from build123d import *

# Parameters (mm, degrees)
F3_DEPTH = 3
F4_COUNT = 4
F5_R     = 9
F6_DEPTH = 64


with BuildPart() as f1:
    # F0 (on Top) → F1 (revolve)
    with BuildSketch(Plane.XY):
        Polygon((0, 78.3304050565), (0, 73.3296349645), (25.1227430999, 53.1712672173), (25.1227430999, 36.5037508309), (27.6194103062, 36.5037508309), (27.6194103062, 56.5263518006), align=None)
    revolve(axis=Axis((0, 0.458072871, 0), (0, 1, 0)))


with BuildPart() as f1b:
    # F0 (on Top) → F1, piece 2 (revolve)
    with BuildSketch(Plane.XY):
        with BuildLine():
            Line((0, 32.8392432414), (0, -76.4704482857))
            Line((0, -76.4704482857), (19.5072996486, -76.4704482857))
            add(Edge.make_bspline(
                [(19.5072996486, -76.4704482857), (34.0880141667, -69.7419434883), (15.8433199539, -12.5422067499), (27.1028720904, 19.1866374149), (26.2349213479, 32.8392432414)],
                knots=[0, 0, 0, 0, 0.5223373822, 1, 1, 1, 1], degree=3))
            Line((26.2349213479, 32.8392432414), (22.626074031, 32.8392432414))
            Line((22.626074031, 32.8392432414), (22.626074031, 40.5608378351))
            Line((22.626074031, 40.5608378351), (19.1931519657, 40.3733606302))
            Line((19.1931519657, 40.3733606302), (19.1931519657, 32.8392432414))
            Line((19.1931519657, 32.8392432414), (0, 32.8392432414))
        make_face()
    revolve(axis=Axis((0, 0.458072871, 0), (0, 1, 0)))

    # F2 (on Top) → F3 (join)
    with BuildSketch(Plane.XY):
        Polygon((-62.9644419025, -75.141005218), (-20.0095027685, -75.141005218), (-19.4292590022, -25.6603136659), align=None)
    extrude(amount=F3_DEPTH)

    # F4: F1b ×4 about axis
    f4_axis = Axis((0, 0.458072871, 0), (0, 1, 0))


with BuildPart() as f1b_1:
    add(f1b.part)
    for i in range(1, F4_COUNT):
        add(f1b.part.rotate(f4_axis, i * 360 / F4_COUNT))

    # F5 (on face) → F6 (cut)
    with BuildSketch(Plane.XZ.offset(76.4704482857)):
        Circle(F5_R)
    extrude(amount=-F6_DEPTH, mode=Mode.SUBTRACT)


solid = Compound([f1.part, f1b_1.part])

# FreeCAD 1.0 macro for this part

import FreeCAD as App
import Part
import Sketcher

V = App.Vector
Q = App.Units.Quantity


def add_polygon(sketch, points):
    """Adds a closed chain of lines whose ends are joined by coincident constraints."""
    first, n = sketch.GeometryCount, len(points)
    for a, b in zip(points, points[1:] + points[:1]):
        sketch.addGeometry(Part.LineSegment(App.Vector(*a, 0), App.Vector(*b, 0)), False)
    for i in range(n):
        sketch.addConstraint(Sketcher.Constraint("Coincident", first + i, 2, first + (i + 1) % n, 1))

doc = App.newDocument("Part")
body = doc.addObject("PartDesign::Body", "Body")

# Sketch on XY plane
sketch1 = doc.addObject("Sketcher::SketchObject", "Sketch")
body.addObject(sketch1)
sketch1.AttachmentSupport = (doc.XY_Plane, [""])
sketch1.MapMode = "FlatFace"
add_polygon(sketch1, [(0, 78.3), (0, 73.3), (25.1, 53.2), (25.1, 36.5), (27.6, 36.5), (27.6, 56.5)])  # lines 0-5
sketch1.addConstraint([
    Sketcher.Constraint("Vertical", 0),
    Sketcher.Constraint("Vertical", 2),
    Sketcher.Constraint("Horizontal", 3),
    Sketcher.Constraint("Vertical", 4),
    Sketcher.Constraint("PointOnObject", 0, 2, -2),
    Sketcher.Constraint("DistanceY", 4, 1, 4, 2, Q("20.022601 mm")),
    Sketcher.Constraint("DistanceY", 0, 2, 0, 1, Q("5.00077 mm")),
    Sketcher.Constraint("DistanceX", 3, 1, 3, 2, Q("2.496667 mm")),
    Sketcher.Constraint("DistanceY", 2, 2, 2, 1, Q("16.667516 mm")),
    Sketcher.Constraint("DistanceY", -1, 1, 2, 2, Q("36.503751 mm")),
    Sketcher.Constraint("DistanceX", -1, 1, 3, 2, Q("27.61941 mm")),
    Sketcher.Constraint("Distance", 1, Q("32.210433 mm")),
])
revolution = doc.addObject("PartDesign::Revolution", "Revolution")
body.addObject(revolution)
revolution.Profile = sketch1
revolution.ReferenceAxis = (sketch1, ["V_Axis"])
revolution.Angle = 360
body2 = doc.addObject("PartDesign::Body", "Body001")

# Sketch on XY plane
sketch2 = doc.addObject("Sketcher::SketchObject", "Sketch001")
body2.addObject(sketch2)
sketch2.AttachmentSupport = (doc.getObject("XY_Plane001"), [""])
sketch2.MapMode = "FlatFace"
sketch2.addGeometry([
    Part.LineSegment(V(0, 32.839243, 0), V(0, -76.470448, 0)),  # 0
    Part.LineSegment(V(0, -76.470448, 0), V(19.5073, -76.470448, 0)),  # 1
    Part.BSplineCurve([V(19.5073, -76.470448, 0), V(34.088014, -69.741943, 0), V(15.84332, -12.542207, 0), V(27.102872, 19.186637, 0), V(26.234921, 32.839243, 0)], [4, 1, 4], [0, 0.522337382, 1], False, 3, [1, 1, 1, 1, 1], False),  # 2
    Part.LineSegment(V(26.234921, 32.839243, 0), V(22.626074, 32.839243, 0)),  # 3
    Part.LineSegment(V(22.626074, 32.839243, 0), V(22.626074, 40.560838, 0)),  # 4
    Part.LineSegment(V(22.626074, 40.560838, 0), V(19.193152, 40.373361, 0)),  # 5
    Part.LineSegment(V(19.193152, 40.373361, 0), V(19.193152, 32.839243, 0)),  # 6
    Part.LineSegment(V(19.193152, 32.839243, 0), V(0, 32.839243, 0)),  # 7
], False)
sketch2.addConstraint([
    Sketcher.Constraint("Block", 2),
    Sketcher.Constraint("Coincident", 0, 2, 1, 1),
    Sketcher.Constraint("Coincident", 1, 2, 2, 1),
    Sketcher.Constraint("Coincident", 2, 2, 3, 1),
    Sketcher.Constraint("Coincident", 3, 2, 4, 1),
    Sketcher.Constraint("Coincident", 4, 2, 5, 1),
    Sketcher.Constraint("Coincident", 5, 2, 6, 1),
    Sketcher.Constraint("Coincident", 6, 2, 7, 1),
    Sketcher.Constraint("Coincident", 7, 2, 0, 1),
    Sketcher.Constraint("Vertical", 0),
    Sketcher.Constraint("Horizontal", 1),
    Sketcher.Constraint("Horizontal", 3),
    Sketcher.Constraint("Vertical", 4),
    Sketcher.Constraint("Vertical", 6),
    Sketcher.Constraint("Horizontal", 7),
    Sketcher.Constraint("PointOnObject", 0, 2, -2),
    Sketcher.Constraint("Horizontal", 3, 2, 6, 2),
    Sketcher.Constraint("DistanceX", 7, 2, 7, 1, Q("19.193152 mm")),
    Sketcher.Constraint("DistanceX", 3, 2, 3, 1, Q("3.608847 mm")),
    Sketcher.Constraint("DistanceY", 4, 1, 4, 2, Q("7.721595 mm")),
    Sketcher.Constraint("DistanceY", 6, 2, 6, 1, Q("7.534117 mm")),
])
revolution2 = doc.addObject("PartDesign::Revolution", "Revolution001")
body2.addObject(revolution2)
revolution2.Profile = sketch2
revolution2.ReferenceAxis = (sketch2, ["V_Axis"])
revolution2.Angle = 360

# Sketch on XY plane
sketch3 = doc.addObject("Sketcher::SketchObject", "Sketch002")
body2.addObject(sketch3)
sketch3.AttachmentSupport = (doc.getObject("XY_Plane001"), [""])
sketch3.MapMode = "FlatFace"
add_polygon(sketch3, [(-63, -75), (-20, -75), (-19, -26)])  # lines 0-2
sketch3.addConstraint([
    Sketcher.Constraint("Horizontal", 0),
    Sketcher.Constraint("DistanceX", 0, 1, 0, 2, Q("42.954939 mm")),
    Sketcher.Constraint("Distance", 2, Q("65.90638 mm")),
    Sketcher.Constraint("DistanceX", 1, 2, -1, 1, Q("19.429259 mm")),
    Sketcher.Constraint("DistanceX", 2, 2, -1, 1, Q("62.964442 mm")),
    Sketcher.Constraint("DistanceY", 0, 2, -1, 1, Q("75.141005 mm")),
])
pad1 = doc.addObject("PartDesign::Pad", "Pad")
body2.addObject(pad1)
pad1.Profile = sketch3
pad1.Length = 3
body3 = doc.addObject("PartDesign::Body", "Body002")
doc.recompute()

body3.BaseFeature = body2
doc.recompute()

body4 = doc.addObject("PartDesign::Body", "Body003")
body4.BaseFeature = body2
body4.Placement = App.Placement(V(0, 0, 0), App.Rotation(V(0, 1, 0), 90))
boolean = doc.addObject("PartDesign::Boolean", "Boolean")
body3.addObject(boolean)
boolean.Type = "Fuse"
boolean.addObjects([body4])
doc.recompute()

body5 = doc.addObject("PartDesign::Body", "Body004")
body5.BaseFeature = body2
body5.Placement = App.Placement(V(0, 0, 0), App.Rotation(V(0, 1, 0), 180))
boolean2 = doc.addObject("PartDesign::Boolean", "Boolean001")
body3.addObject(boolean2)
boolean2.Type = "Fuse"
boolean2.addObjects([body5])
doc.recompute()

body2.Placement = App.Placement(V(0, 0, 0), App.Rotation(V(0, 1, 0), 270))
boolean3 = doc.addObject("PartDesign::Boolean", "Boolean002")
body3.addObject(boolean3)
boolean3.Type = "Fuse"
boolean3.addObjects([body2])

# Sketch on XZ plane
sketch4 = doc.addObject("Sketcher::SketchObject", "Sketch003")
body3.addObject(sketch4)
sketch4.AttachmentSupport = (doc.getObject("XZ_Plane002"), [""])
sketch4.MapMode = "FlatFace"
sketch4.AttachmentOffset = App.Placement(V(0, 0, 76.470448), App.Rotation())
sketch4.addGeometry(Part.Circle(V(0, 0, 0), V(0, 0, 1), 9), False)
sketch4.addConstraint([
    Sketcher.Constraint("Coincident", 0, 3, -1, 1),
    Sketcher.Constraint("Diameter", 0, Q("18 mm")),
])
pocket1 = doc.addObject("PartDesign::Pocket", "Pocket")
body3.addObject(pocket1)
pocket1.Profile = sketch4
pocket1.Length = 64

doc.recompute()
